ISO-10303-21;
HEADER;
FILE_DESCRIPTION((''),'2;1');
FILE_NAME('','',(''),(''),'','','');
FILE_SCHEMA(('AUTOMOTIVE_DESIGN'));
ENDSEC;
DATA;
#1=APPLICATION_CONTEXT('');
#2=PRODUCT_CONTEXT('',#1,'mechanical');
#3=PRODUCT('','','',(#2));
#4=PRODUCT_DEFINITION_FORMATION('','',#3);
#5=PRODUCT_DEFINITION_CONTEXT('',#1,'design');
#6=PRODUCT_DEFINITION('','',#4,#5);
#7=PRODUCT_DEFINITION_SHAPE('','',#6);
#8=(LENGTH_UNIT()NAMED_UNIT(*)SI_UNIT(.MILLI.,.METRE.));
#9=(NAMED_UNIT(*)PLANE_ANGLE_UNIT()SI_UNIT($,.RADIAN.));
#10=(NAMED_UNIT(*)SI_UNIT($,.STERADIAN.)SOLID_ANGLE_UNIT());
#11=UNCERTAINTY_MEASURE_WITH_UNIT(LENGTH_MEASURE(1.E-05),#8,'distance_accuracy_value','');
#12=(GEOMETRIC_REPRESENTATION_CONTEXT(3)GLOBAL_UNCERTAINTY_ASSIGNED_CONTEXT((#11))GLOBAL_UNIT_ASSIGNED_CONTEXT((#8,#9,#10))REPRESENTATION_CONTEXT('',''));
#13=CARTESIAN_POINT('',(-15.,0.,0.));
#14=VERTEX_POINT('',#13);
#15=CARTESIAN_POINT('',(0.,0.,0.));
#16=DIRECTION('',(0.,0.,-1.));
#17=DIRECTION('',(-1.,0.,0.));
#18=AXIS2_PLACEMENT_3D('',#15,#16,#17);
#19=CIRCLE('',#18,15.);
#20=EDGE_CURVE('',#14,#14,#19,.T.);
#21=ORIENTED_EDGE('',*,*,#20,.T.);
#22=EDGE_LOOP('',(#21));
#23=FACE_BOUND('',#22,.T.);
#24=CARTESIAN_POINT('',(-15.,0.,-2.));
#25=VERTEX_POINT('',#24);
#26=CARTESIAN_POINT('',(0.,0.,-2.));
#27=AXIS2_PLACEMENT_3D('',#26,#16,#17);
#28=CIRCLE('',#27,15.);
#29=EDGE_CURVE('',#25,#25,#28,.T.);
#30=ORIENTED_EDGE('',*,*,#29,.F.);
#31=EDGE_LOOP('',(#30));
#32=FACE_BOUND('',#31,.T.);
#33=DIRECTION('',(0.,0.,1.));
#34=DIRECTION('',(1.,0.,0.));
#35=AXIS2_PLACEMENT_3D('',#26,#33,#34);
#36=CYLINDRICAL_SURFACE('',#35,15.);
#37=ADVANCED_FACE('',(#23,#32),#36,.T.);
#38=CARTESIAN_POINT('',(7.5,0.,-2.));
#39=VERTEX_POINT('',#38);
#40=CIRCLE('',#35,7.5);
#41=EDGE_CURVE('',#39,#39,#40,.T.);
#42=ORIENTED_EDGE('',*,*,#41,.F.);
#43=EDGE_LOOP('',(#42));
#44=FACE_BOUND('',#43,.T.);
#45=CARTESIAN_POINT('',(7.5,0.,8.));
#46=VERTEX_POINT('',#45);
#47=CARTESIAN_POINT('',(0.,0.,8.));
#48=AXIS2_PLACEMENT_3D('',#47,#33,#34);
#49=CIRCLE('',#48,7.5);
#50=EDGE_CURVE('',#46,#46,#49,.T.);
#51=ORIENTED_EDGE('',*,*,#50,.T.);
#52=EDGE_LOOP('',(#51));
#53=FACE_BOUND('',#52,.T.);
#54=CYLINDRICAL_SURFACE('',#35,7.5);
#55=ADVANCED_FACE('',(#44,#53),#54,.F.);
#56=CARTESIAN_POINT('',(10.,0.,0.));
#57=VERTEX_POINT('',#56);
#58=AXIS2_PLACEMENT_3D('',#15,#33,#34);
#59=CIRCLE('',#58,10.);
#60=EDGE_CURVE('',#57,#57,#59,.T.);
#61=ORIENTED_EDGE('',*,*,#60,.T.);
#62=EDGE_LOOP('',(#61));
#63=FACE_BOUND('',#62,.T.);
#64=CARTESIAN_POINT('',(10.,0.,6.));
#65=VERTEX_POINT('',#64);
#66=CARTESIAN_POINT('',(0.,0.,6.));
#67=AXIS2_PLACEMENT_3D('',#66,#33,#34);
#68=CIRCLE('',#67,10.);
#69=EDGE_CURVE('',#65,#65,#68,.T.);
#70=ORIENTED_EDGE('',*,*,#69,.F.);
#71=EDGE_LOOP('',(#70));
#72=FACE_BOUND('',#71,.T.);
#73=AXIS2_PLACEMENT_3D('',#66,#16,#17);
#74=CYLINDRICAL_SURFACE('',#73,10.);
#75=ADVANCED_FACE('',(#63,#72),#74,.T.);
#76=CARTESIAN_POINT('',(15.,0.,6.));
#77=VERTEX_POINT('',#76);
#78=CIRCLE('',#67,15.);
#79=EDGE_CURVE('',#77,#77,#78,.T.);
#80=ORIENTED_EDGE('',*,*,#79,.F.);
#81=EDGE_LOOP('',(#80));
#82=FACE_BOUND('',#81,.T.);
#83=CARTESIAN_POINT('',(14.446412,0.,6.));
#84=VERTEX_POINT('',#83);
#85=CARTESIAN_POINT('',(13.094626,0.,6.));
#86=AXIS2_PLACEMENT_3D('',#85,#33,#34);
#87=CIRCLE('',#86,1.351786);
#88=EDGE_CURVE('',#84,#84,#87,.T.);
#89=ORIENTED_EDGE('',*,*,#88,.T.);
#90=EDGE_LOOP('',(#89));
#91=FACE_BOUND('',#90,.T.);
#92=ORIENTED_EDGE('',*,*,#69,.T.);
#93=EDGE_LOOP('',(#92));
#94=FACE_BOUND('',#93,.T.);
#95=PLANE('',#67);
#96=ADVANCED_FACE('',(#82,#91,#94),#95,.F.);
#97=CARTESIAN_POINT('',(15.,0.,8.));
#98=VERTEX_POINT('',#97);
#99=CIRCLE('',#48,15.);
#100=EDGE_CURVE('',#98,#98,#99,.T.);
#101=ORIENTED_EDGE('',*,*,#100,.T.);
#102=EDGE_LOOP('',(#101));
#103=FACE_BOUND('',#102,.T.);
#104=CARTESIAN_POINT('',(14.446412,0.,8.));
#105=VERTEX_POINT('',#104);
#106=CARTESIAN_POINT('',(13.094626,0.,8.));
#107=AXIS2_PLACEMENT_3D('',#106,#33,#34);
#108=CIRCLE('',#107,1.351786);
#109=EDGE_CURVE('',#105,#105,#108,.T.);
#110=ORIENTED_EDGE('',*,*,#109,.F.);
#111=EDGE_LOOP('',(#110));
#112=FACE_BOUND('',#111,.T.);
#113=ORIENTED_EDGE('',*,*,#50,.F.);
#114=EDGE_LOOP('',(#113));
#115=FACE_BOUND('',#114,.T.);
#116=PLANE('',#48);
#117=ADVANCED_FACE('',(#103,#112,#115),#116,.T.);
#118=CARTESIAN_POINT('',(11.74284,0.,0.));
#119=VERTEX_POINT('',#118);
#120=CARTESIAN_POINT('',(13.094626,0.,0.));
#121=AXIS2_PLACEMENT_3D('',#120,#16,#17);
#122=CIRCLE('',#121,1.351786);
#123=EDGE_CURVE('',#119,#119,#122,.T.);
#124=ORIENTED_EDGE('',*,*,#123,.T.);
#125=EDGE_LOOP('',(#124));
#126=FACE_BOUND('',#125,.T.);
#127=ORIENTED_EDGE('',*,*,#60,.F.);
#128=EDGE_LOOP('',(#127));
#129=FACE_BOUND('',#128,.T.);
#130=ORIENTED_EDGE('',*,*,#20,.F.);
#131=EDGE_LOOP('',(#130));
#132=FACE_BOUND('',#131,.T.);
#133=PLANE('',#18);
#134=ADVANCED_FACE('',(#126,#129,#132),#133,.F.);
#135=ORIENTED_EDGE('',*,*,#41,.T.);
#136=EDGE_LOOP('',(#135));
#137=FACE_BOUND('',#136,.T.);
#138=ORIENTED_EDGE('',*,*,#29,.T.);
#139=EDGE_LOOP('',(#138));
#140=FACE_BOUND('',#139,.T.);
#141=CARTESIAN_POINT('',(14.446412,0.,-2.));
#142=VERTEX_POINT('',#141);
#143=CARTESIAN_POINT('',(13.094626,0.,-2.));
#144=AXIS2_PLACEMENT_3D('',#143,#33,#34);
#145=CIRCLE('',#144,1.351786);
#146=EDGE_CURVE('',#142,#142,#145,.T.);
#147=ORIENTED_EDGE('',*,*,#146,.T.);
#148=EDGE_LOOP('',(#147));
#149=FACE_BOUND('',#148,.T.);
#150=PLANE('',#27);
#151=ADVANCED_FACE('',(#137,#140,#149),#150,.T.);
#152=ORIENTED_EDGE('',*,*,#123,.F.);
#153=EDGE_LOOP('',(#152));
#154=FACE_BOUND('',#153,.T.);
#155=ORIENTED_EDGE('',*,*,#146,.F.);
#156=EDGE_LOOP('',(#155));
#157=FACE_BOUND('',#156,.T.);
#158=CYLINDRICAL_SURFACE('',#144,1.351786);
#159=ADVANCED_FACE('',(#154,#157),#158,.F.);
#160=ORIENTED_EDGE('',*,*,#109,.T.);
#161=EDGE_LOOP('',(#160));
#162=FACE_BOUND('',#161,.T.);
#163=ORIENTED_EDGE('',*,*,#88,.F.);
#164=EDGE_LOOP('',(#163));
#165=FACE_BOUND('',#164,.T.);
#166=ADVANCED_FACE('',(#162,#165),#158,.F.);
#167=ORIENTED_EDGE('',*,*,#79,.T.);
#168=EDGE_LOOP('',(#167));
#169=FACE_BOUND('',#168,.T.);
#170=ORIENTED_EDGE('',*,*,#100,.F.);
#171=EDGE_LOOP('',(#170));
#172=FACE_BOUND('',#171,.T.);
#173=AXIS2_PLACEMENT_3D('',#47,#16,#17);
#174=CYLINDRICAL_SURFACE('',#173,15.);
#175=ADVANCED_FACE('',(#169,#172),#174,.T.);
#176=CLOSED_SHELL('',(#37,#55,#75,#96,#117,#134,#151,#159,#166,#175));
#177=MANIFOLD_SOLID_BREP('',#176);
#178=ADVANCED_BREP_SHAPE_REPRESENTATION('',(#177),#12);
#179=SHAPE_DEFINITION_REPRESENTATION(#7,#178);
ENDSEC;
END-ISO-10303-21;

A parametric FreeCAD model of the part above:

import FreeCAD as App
import Part
import Sketcher
from FreeCAD import Vector
Q = App.Units.Quantity

doc = App.newDocument("Part")
body = doc.addObject("PartDesign::Body", "Body")

# Sketch on XY plane
sketch1 = body.newObject("Sketcher::SketchObject", "Sketch")
sketch1.AttachmentSupport = (doc.getObject("XY_Plane"), [""])
sketch1.MapMode = "FlatFace"
sketch1.addGeometry(Part.Circle(Vector(0, 0, 0), Vector(0, 0, 1), 10), False)
sketch1.addConstraint([
    Sketcher.Constraint("Coincident", 0, 3, -1, 1),
    Sketcher.Constraint("Diameter", 0, Q("20 mm")),
])
pad1 = body.newObject("PartDesign::Pad", "Pad")
pad1.Profile = sketch1
pad1.Length = 6

# Sketch on XY plane
sketch2 = body.newObject("Sketcher::SketchObject", "Sketch001")
sketch2.AttachmentSupport = (doc.getObject("XY_Plane"), [""])
sketch2.MapMode = "FlatFace"
sketch2.addGeometry(Part.Circle(Vector(0, 0, 0), Vector(0, 0, 1), 15), False)
sketch2.addConstraint([
    Sketcher.Constraint("Coincident", 0, 3, -1, 1),
    Sketcher.Constraint("Diameter", 0, Q("30 mm")),
])
pad2 = body.newObject("PartDesign::Pad", "Pad001")
pad2.Profile = sketch2
pad2.Length = 2
pad2.Reversed = True

# Sketch on XY plane
sketch3 = body.newObject("Sketcher::SketchObject", "Sketch002")
sketch3.AttachmentSupport = (doc.getObject("XY_Plane"), [""])
sketch3.MapMode = "FlatFace"
sketch3.AttachmentOffset = App.Placement(Vector(0, 0, 8), App.Rotation())
sketch3.addGeometry(Part.Circle(Vector(0, 0, 0), Vector(0, 0, 1), 15), False)
sketch3.addConstraint([
    Sketcher.Constraint("Coincident", 0, 3, -1, 1),
    Sketcher.Constraint("Diameter", 0, Q("30 mm")),
])
pad3 = body.newObject("PartDesign::Pad", "Pad002")
pad3.Profile = sketch3
pad3.Length = 2
pad3.Reversed = True

# Sketch on XY plane
sketch4 = body.newObject("Sketcher::SketchObject", "Sketch003")
sketch4.AttachmentSupport = (doc.getObject("XY_Plane"), [""])
sketch4.MapMode = "FlatFace"
sketch4.AttachmentOffset = App.Placement(Vector(0, 0, 8), App.Rotation())
sketch4.addGeometry(Part.Circle(Vector(0, 0, 0), Vector(0, 0, 1), 8), False)
sketch4.addConstraint([
    Sketcher.Constraint("Coincident", 0, 3, -1, 1),
    Sketcher.Constraint("Diameter", 0, Q("15 mm")),
])
pocket1 = body.newObject("PartDesign::Pocket", "Pocket")
pocket1.Profile = sketch4
pocket1.Type = "ThroughAll"
pocket1.Midplane = True

# Sketch on XY plane
sketch5 = body.newObject("Sketcher::SketchObject", "Sketch004")
sketch5.AttachmentSupport = (doc.getObject("XY_Plane"), [""])
sketch5.MapMode = "FlatFace"
sketch5.AttachmentOffset = App.Placement(Vector(0, 0, 8), App.Rotation())
sketch5.addGeometry(Part.Circle(Vector(13.1, 0, 0), Vector(0, 0, 1), 1.4), False)
sketch5.addConstraint([
    Sketcher.Constraint("PointOnObject", 0, 3, -1),
    Sketcher.Constraint("Diameter", 0, Q("2.703572 mm")),
    Sketcher.Constraint("DistanceX", -1, 1, 0, 3, Q("13.094626 mm")),
])
pocket2 = body.newObject("PartDesign::Pocket", "Pocket001")
pocket2.Profile = sketch5
pocket2.Type = "ThroughAll"
pocket2.Midplane = True

doc.recompute()
